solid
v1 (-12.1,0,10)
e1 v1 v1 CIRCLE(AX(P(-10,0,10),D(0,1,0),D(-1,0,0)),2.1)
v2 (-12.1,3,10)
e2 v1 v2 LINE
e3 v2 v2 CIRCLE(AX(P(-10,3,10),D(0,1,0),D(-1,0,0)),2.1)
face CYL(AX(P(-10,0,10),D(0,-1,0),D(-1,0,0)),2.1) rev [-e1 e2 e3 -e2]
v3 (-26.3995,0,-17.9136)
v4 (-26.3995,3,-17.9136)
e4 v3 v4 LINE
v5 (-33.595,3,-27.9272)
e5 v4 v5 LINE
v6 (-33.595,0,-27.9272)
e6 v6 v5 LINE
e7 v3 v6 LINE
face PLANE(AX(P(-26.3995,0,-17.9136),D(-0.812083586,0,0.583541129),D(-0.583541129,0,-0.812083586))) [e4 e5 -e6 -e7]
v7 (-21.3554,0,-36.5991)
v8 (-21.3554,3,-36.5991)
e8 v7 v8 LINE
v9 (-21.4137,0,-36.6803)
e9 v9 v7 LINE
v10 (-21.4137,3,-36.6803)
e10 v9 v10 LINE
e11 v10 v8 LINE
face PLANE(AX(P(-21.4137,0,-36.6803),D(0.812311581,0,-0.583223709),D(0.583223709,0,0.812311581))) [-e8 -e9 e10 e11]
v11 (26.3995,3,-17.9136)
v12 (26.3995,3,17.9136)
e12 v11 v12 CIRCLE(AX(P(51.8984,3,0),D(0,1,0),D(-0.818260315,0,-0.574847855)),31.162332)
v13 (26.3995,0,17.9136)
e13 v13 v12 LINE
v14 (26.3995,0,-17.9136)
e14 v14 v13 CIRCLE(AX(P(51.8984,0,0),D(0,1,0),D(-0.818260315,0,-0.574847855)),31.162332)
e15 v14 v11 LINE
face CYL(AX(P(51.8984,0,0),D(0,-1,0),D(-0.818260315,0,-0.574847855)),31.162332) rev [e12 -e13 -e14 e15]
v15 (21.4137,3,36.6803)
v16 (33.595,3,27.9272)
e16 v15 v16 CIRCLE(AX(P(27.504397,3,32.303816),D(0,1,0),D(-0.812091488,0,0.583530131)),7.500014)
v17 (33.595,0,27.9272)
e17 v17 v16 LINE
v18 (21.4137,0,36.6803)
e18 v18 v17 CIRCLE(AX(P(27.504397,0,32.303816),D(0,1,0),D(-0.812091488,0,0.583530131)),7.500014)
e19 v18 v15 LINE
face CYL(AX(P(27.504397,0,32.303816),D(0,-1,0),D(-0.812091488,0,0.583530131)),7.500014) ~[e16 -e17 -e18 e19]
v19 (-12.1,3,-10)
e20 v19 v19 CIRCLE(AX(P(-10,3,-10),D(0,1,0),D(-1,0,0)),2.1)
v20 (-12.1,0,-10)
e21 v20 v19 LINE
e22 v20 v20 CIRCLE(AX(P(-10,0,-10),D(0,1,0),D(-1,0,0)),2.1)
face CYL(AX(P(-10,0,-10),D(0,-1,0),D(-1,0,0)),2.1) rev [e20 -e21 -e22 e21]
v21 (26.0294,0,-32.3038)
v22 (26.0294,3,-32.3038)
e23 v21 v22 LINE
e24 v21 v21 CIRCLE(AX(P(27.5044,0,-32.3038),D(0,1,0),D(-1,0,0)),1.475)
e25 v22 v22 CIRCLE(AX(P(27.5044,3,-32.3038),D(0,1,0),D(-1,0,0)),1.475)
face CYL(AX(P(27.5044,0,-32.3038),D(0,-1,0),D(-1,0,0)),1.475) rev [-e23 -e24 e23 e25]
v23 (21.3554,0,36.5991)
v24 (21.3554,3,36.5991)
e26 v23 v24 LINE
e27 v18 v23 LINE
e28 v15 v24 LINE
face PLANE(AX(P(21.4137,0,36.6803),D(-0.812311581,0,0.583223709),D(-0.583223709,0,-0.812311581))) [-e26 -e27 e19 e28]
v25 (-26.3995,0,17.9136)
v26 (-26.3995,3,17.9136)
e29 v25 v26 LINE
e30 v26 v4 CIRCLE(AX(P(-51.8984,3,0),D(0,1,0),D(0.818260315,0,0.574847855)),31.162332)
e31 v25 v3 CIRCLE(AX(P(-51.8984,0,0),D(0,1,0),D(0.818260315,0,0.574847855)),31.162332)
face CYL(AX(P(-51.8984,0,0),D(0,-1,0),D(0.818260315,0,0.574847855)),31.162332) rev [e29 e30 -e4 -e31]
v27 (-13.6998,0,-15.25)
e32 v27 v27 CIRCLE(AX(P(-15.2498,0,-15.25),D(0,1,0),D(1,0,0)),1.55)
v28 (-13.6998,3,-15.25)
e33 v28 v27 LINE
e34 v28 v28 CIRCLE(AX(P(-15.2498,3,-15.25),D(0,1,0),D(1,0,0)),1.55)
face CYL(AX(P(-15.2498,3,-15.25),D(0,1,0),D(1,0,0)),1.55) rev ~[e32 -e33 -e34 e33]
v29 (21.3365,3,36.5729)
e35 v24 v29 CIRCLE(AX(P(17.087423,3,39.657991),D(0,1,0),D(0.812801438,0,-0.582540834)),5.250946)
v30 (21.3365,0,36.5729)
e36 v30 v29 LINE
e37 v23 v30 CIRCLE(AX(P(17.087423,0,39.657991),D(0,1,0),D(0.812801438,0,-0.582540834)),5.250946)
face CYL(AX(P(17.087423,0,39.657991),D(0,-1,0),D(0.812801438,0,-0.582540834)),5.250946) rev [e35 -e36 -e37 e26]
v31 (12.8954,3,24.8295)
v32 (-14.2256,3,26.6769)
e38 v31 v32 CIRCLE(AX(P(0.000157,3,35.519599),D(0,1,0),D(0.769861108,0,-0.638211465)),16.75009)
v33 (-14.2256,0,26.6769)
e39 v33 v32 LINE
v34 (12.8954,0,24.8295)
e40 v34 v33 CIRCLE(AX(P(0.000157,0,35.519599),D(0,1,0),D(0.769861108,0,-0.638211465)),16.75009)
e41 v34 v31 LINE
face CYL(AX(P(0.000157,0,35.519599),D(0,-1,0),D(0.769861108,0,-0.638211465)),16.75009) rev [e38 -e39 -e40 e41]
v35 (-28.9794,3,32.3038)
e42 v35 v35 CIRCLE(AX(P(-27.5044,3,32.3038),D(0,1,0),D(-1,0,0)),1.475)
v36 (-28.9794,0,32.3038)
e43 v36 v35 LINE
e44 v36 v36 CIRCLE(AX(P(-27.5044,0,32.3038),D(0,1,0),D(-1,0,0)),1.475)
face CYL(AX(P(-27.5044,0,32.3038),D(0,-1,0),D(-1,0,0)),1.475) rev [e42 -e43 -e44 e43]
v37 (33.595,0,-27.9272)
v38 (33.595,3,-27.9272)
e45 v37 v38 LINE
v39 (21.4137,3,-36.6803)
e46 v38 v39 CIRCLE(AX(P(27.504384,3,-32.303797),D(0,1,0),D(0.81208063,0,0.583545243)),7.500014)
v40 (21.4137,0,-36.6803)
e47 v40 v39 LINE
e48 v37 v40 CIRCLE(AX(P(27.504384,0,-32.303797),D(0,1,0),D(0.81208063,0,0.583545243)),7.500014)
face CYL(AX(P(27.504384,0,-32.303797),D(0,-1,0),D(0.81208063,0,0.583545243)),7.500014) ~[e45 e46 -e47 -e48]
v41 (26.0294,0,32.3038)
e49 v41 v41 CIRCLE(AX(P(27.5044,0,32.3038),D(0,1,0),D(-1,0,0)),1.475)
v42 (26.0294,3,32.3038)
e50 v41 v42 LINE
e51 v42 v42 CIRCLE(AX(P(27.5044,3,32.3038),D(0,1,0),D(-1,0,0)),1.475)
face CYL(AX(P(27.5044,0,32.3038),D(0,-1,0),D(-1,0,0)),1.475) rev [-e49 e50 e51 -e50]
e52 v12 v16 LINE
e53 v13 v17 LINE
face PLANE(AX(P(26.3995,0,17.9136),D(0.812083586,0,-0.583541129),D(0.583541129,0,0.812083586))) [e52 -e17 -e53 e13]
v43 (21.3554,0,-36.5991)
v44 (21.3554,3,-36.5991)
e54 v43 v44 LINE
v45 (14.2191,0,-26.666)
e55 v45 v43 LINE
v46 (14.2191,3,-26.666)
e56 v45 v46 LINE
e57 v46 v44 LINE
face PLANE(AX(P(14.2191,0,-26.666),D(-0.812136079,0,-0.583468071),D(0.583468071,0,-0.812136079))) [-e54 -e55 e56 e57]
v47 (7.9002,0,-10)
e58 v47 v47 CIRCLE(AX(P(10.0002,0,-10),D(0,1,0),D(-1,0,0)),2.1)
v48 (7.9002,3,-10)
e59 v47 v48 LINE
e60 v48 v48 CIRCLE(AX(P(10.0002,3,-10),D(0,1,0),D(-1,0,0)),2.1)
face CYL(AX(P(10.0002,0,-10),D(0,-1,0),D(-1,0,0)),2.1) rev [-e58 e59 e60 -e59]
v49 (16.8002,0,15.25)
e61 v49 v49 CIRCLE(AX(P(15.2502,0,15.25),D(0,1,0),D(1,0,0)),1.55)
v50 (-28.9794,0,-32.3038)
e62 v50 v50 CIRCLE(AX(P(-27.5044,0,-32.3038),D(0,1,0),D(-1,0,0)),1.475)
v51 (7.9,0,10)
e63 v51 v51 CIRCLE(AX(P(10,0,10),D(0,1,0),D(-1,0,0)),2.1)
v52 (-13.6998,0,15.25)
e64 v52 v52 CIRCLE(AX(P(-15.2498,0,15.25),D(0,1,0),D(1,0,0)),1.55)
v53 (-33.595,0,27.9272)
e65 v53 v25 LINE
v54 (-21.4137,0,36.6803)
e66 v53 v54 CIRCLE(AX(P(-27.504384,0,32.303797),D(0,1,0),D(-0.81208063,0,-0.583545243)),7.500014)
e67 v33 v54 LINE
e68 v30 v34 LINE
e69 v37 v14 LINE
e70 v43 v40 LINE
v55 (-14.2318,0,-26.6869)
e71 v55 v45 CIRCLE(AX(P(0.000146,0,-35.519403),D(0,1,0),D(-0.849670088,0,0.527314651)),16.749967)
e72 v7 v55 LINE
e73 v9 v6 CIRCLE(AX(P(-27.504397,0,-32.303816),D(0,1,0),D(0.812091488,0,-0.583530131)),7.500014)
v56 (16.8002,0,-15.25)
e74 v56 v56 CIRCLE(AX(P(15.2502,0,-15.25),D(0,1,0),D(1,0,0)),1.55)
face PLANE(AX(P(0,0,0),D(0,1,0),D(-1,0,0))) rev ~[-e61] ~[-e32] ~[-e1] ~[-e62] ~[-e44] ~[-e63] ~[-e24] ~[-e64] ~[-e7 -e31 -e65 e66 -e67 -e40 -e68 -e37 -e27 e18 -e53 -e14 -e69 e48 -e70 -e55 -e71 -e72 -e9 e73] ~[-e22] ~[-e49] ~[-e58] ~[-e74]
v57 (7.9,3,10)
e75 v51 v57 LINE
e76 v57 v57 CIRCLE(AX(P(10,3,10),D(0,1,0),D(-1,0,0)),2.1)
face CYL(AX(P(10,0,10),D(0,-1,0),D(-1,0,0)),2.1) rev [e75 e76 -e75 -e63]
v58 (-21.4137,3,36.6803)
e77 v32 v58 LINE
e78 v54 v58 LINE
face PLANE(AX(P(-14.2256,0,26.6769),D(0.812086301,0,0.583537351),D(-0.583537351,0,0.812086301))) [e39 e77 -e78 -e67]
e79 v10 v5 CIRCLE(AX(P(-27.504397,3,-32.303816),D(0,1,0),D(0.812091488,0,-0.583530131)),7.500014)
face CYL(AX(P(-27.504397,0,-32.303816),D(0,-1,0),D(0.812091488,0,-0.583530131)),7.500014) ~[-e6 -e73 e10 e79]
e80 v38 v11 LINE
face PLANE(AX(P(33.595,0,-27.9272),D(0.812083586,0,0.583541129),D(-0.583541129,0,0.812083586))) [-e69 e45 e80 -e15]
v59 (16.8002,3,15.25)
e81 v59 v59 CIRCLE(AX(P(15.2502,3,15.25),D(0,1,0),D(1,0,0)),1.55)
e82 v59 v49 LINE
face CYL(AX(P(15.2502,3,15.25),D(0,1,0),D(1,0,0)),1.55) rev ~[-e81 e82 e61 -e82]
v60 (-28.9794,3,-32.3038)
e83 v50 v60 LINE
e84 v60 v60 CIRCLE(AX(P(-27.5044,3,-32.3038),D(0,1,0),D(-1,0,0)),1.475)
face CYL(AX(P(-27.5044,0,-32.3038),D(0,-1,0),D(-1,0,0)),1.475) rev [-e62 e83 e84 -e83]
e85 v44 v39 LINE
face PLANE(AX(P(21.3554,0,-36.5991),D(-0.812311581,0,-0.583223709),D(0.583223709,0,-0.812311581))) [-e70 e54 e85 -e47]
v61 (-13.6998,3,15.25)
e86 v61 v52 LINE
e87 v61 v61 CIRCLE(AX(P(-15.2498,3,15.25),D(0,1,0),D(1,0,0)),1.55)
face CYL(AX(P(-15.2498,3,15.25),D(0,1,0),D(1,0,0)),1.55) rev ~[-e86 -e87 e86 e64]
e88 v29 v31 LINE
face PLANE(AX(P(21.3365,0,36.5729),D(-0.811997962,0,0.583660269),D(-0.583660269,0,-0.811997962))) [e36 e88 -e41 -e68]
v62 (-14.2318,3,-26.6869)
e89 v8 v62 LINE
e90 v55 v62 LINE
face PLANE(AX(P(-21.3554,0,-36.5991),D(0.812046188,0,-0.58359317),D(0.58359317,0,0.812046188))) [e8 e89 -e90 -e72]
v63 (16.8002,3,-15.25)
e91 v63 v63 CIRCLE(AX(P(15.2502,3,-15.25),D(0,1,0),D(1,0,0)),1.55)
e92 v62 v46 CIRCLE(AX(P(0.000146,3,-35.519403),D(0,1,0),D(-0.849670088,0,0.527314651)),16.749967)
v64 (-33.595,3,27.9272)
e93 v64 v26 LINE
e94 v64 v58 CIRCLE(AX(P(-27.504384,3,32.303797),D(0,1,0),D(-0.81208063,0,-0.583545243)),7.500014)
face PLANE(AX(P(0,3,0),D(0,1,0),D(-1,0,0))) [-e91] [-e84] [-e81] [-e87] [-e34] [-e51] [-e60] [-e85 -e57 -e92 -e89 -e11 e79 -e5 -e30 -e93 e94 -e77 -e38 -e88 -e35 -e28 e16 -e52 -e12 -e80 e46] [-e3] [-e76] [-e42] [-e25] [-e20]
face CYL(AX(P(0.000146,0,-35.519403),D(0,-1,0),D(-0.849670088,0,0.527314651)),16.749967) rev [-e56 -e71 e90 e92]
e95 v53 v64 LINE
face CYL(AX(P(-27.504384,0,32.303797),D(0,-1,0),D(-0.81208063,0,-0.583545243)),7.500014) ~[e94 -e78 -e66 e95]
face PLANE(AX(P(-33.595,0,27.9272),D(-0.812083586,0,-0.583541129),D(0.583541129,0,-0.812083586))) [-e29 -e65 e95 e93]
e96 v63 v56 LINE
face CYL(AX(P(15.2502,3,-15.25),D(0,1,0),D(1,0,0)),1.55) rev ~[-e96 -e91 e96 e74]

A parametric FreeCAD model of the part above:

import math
import FreeCAD as App
import Part
import Sketcher

V = App.Vector
Q = App.Units.Quantity

doc = App.newDocument("Part")
body = doc.addObject("PartDesign::Body", "Body")

# Sketch on XZ plane
sketch1 = doc.addObject("Sketcher::SketchObject", "Sketch")
body.addObject(sketch1)
sketch1.AttachmentSupport = (doc.XZ_Plane, [""])
sketch1.MapMode = "FlatFace"
sketch1.addGeometry([
    Part.LineSegment(V(21.3554, 36.5991, 0), V(21.4137, 36.6803, 0)),  # 0
    Part.ArcOfCircle(Part.Circle(V(27.5044, 32.3038, 0), V(0, 0, 1), 7.500025), math.radians(-35.700372), math.radians(144.300694)),  # 1
    Part.LineSegment(V(33.595, 27.9272, 0), V(26.3995, 17.9136, 0)),  # 2
    Part.ArcOfCircle(Part.Circle(V(51.8984, 0, 0), V(0, 0, 1), 31.162332), math.radians(144.911022), math.radians(215.088978)),  # 3
    Part.LineSegment(V(26.3995, -17.9136, 0), V(33.595, -27.9272, 0)),  # 4
    Part.ArcOfCircle(Part.Circle(V(27.5044, -32.3038, 0), V(0, 0, 1), 7.500002), math.radians(-144.300694), math.radians(35.700372)),  # 5
    Part.LineSegment(V(21.4137, -36.6803, 0), V(21.3554, -36.5991, 0)),  # 6
    Part.LineSegment(V(21.3554, -36.5991, 0), V(14.2191, -26.666, 0)),  # 7
    Part.ArcOfCircle(Part.Circle(V(0.0002, -35.5195, 0), V(0, 0, 1), 16.750064), math.radians(31.908753), math.radians(148.17562)),  # 8
    Part.LineSegment(V(-14.2318, -26.6869, 0), V(-21.3554, -36.5991, 0)),  # 9
    Part.LineSegment(V(-21.3554, -36.5991, 0), V(-21.4137, -36.6803, 0)),  # 10
    Part.ArcOfCircle(Part.Circle(V(-27.5044, -32.3038, 0), V(0, 0, 1), 7.500025), math.radians(144.299628), math.radians(324.300694)),  # 11
    Part.LineSegment(V(-33.595, -27.9272, 0), V(-26.3995, -17.9136, 0)),  # 12
    Part.ArcOfCircle(Part.Circle(V(-51.8984, 0, 0), V(0, 0, 1), 31.162332), math.radians(-35.088978), math.radians(35.088978)),  # 13
    Part.LineSegment(V(-26.3995, 17.9136, 0), V(-33.595, 27.9272, 0)),  # 14
    Part.ArcOfCircle(Part.Circle(V(-27.5044, 32.3038, 0), V(0, 0, 1), 7.500002), math.radians(35.699306), math.radians(215.700372)),  # 15
    Part.LineSegment(V(-21.4137, 36.6803, 0), V(-14.2256, 26.6769, 0)),  # 16
    Part.ArcOfCircle(Part.Circle(V(0.0002, 35.5195, 0), V(0, 0, 1), 16.749994), math.radians(-148.135373), math.radians(-39.658413)),  # 17
    Part.LineSegment(V(12.8954, 24.8295, 0), V(21.3365, 36.5729, 0)),  # 18
    Part.ArcOfCircle(Part.Circle(V(17.087423, 39.657991, 0), V(0, 0, 1), 5.250946), math.radians(-35.981954), math.radians(-35.629451)),  # 19
    Part.Circle(V(27.5044, -32.3038, 0), V(0, 0, 1), 1.475),  # 20
    Part.Circle(V(15.2502, -15.25, 0), V(0, 0, 1), 1.475),  # 21
    Part.Circle(V(10.0002, -10, 0), V(0, 0, 1), 2.1),  # 22
    Part.Circle(V(-27.5044, -32.3038, 0), V(0, 0, 1), 1.475),  # 23
    Part.Circle(V(-15.2498, -15.25, 0), V(0, 0, 1), 1.475),  # 24
    Part.Circle(V(-10, -10, 0), V(0, 0, 1), 2.1),  # 25
    Part.Circle(V(27.5044, 32.3038, 0), V(0, 0, 1), 1.475),  # 26
    Part.Circle(V(-10, 10, 0), V(0, 0, 1), 2.1),  # 27
    Part.Circle(V(-15.2498, 15.25, 0), V(0, 0, 1), 1.475),  # 28
    Part.Circle(V(-27.5044, 32.3038, 0), V(0, 0, 1), 1.475),  # 29
    Part.Circle(V(10, 10, 0), V(0, 0, 1), 2.1),  # 30
    Part.Circle(V(15.2502, 15.25, 0), V(0, 0, 1), 1.475),  # 31
], False)
sketch1.addConstraint([
    Sketcher.Constraint("Coincident", 0, 2, 1, 2),
    Sketcher.Constraint("Coincident", 1, 1, 2, 1),
    Sketcher.Constraint("Coincident", 2, 2, 3, 1),
    Sketcher.Constraint("Coincident", 3, 2, 4, 1),
    Sketcher.Constraint("Coincident", 4, 2, 5, 2),
    Sketcher.Constraint("Coincident", 5, 1, 6, 1),
    Sketcher.Constraint("Coincident", 6, 2, 7, 1),
    Sketcher.Constraint("Coincident", 7, 2, 8, 1),
    Sketcher.Constraint("Coincident", 8, 2, 9, 1),
    Sketcher.Constraint("Coincident", 9, 2, 10, 1),
    Sketcher.Constraint("Coincident", 10, 2, 11, 2),
    Sketcher.Constraint("Coincident", 11, 1, 12, 1),
    Sketcher.Constraint("Coincident", 12, 2, 13, 1),
    Sketcher.Constraint("Coincident", 13, 2, 14, 1),
    Sketcher.Constraint("Coincident", 14, 2, 15, 2),
    Sketcher.Constraint("Coincident", 15, 1, 16, 1),
    Sketcher.Constraint("Coincident", 16, 2, 17, 1),
    Sketcher.Constraint("Coincident", 17, 2, 18, 1),
    Sketcher.Constraint("Coincident", 18, 2, 19, 1),
    Sketcher.Constraint("Coincident", 19, 2, 0, 1),
    Sketcher.Constraint("Coincident", 20, 3, 5, 3),
    Sketcher.Constraint("Coincident", 23, 3, 11, 3),
    Sketcher.Constraint("Coincident", 26, 3, 1, 3),
    Sketcher.Constraint("Coincident", 29, 3, 15, 3),
    Sketcher.Constraint("PointOnObject", 3, 3, -1),
    Sketcher.Constraint("PointOnObject", 13, 3, -1),
    Sketcher.Constraint("Diameter", 22, Q("4.2 mm")),
    Sketcher.Constraint("Diameter", 25, Q("4.2 mm")),
    Sketcher.Constraint("Diameter", 27, Q("4.2 mm")),
    Sketcher.Constraint("Diameter", 30, Q("4.2 mm")),
    Sketcher.Constraint("Radius", 1, Q("7.5 mm")),
    Sketcher.Constraint("Radius", 5, Q("7.5 mm")),
    Sketcher.Constraint("Radius", 11, Q("7.5 mm")),
    Sketcher.Constraint("Radius", 15, Q("7.5 mm")),
    Sketcher.Constraint("Diameter", 20, Q("2.95 mm")),
    Sketcher.Constraint("Diameter", 21, Q("2.95 mm")),
    Sketcher.Constraint("Diameter", 23, Q("2.95 mm")),
    Sketcher.Constraint("Diameter", 24, Q("2.95 mm")),
    Sketcher.Constraint("Diameter", 26, Q("2.95 mm")),
    Sketcher.Constraint("Diameter", 28, Q("2.95 mm")),
    Sketcher.Constraint("Diameter", 29, Q("2.95 mm")),
    Sketcher.Constraint("Diameter", 31, Q("2.95 mm")),
    Sketcher.Constraint("Radius", 8, Q("16.75 mm")),
    Sketcher.Constraint("Radius", 17, Q("16.75 mm")),
    Sketcher.Constraint("DistanceY", 22, 3, -1, 1, Q("10 mm")),
    Sketcher.Constraint("DistanceX", 25, 3, -1, 1, Q("10 mm")),
    Sketcher.Constraint("DistanceY", 25, 3, -1, 1, Q("10 mm")),
    Sketcher.Constraint("DistanceX", 27, 3, -1, 1, Q("10 mm")),
    Sketcher.Constraint("DistanceY", -1, 1, 27, 3, Q("10 mm")),
    Sketcher.Constraint("DistanceX", -1, 1, 30, 3, Q("10 mm")),
    Sketcher.Constraint("DistanceY", -1, 1, 30, 3, Q("10 mm")),
    Sketcher.Constraint("Radius", 19, Q("5.251 mm")),
    Sketcher.Constraint("DistanceX", 8, 3, 22, 3, Q("10 mm")),
    Sketcher.Constraint("Distance", 0, Q("0.1 mm")),
    Sketcher.Constraint("Distance", 6, Q("0.1 mm")),
    Sketcher.Constraint("Distance", 10, Q("0.1 mm")),
    Sketcher.Constraint("Radius", 3, Q("31.1623 mm")),
    Sketcher.Constraint("Radius", 13, Q("31.1623 mm")),
    Sketcher.Constraint("DistanceX", 24, 3, 21, 3, Q("30.5 mm")),
    Sketcher.Constraint("DistanceY", 24, 3, 28, 3, Q("30.5 mm")),
    Sketcher.Constraint("DistanceY", 21, 3, -1, 1, Q("15.25 mm")),
    Sketcher.Constraint("DistanceY", 24, 3, -1, 1, Q("15.25 mm")),
    Sketcher.Constraint("DistanceY", -1, 1, 31, 3, Q("15.25 mm")),
    Sketcher.Constraint("DistanceX", 8, 3, 21, 3, Q("15.25 mm")),
    Sketcher.Constraint("DistanceX", 28, 3, 17, 3, Q("15.25 mm")),
    Sketcher.Constraint("DistanceX", 17, 3, 31, 3, Q("15.25 mm")),
    Sketcher.Constraint("DistanceY", -1, 1, 19, 3, Q("39.658 mm")),
    Sketcher.Constraint("DistanceX", -1, 1, 1, 1, Q("33.595 mm")),
    Sketcher.Constraint("DistanceX", -1, 1, 4, 2, Q("33.595 mm")),
    Sketcher.Constraint("DistanceY", 6, 2, -1, 1, Q("36.599 mm")),
    Sketcher.Constraint("DistanceX", -1, 1, 7, 2, Q("14.219 mm")),
    Sketcher.Constraint("DistanceY", 7, 2, -1, 1, Q("26.666 mm")),
    Sketcher.Constraint("DistanceY", 8, 2, -1, 1, Q("26.687 mm")),
    Sketcher.Constraint("DistanceY", 9, 2, -1, 1, Q("36.599 mm")),
    Sketcher.Constraint("DistanceX", 11, 1, -1, 1, Q("33.595 mm")),
    Sketcher.Constraint("DistanceX", 14, 2, -1, 1, Q("33.595 mm")),
    Sketcher.Constraint("DistanceY", -1, 1, 16, 2, Q("26.677 mm")),
    Sketcher.Constraint("DistanceY", -1, 1, 18, 2, Q("36.573 mm")),
    Sketcher.Constraint("DistanceY", -1, 1, 19, 2, Q("36.599 mm")),
    Sketcher.Constraint("DistanceX", 1, 3, 3, 3, Q("24.394 mm")),
    Sketcher.Constraint("DistanceX", 5, 3, 3, 3, Q("24.394 mm")),
    Sketcher.Constraint("DistanceX", 13, 3, 11, 3, Q("24.394 mm")),
    Sketcher.Constraint("DistanceX", 13, 3, 15, 3, Q("24.394 mm")),
    Sketcher.Constraint("DistanceY", 8, 3, 17, 3, Q("71.039 mm")),
    Sketcher.Constraint("DistanceX", 19, 3, 1, 3, Q("10.417 mm")),
    Sketcher.Constraint("DistanceY", 1, 1, 0, 2, Q("8.753 mm")),
    Sketcher.Constraint("DistanceX", 2, 2, 1, 3, Q("1.105 mm")),
    Sketcher.Constraint("DistanceX", 3, 2, 5, 3, Q("1.105 mm")),
    Sketcher.Constraint("DistanceY", 5, 1, 4, 2, Q("8.753 mm")),
    Sketcher.Constraint("DistanceX", 6, 2, 5, 3, Q("6.149 mm")),
    Sketcher.Constraint("DistanceY", 6, 2, 4, 2, Q("8.672 mm")),
    Sketcher.Constraint("DistanceX", 7, 2, 21, 3, Q("1.031 mm")),
    Sketcher.Constraint("DistanceY", 11, 3, 8, 2, Q("5.617 mm")),
    Sketcher.Constraint("DistanceX", 11, 3, 9, 2, Q("6.149 mm")),
    Sketcher.Constraint("DistanceX", 10, 2, 8, 2, Q("7.182 mm")),
    Sketcher.Constraint("DistanceX", 11, 3, 12, 2, Q("1.105 mm")),
    Sketcher.Constraint("DistanceX", 15, 3, 13, 2, Q("1.105 mm")),
    Sketcher.Constraint("DistanceY", 14, 2, 15, 1, Q("8.753 mm")),
    Sketcher.Constraint("DistanceX", 15, 1, 17, 3, Q("21.414 mm")),
    Sketcher.Constraint("DistanceY", 16, 2, 15, 3, Q("5.627 mm")),
    Sketcher.Constraint("DistanceX", 17, 2, 2, 2, Q("13.504 mm")),
])
pad1 = doc.addObject("PartDesign::Pad", "Pad")
body.addObject(pad1)
pad1.Profile = sketch1
pad1.Length = 3
pad1.Reversed = True

# Sketch on XZ plane
sketch2 = doc.addObject("Sketcher::SketchObject", "Sketch001")
body.addObject(sketch2)
sketch2.AttachmentSupport = (doc.XZ_Plane, [""])
sketch2.MapMode = "FlatFace"
sketch2.AttachmentOffset = App.Placement(V(0, 0, -3), App.Rotation())
sketch2.addGeometry([
    Part.Circle(V(-15.2, -15.2, 0), V(0, 0, 1), 1.6),
    Part.Circle(V(15.3, -15.2, 0), V(0, 0, 1), 1.6),
    Part.Circle(V(15.3, 15.2, 0), V(0, 0, 1), 1.6),
    Part.Circle(V(-15.2, 15.2, 0), V(0, 0, 1), 1.6),
], False)
sketch2.addConstraint([
    Sketcher.Constraint("Equal", 0, 1),
    Sketcher.Constraint("Equal", 1, 2),
    Sketcher.Constraint("Equal", 2, 3),
    Sketcher.Constraint("Symmetric", 0, 3, 2, 3, -1, 1),
    Sketcher.Constraint("Symmetric", 1, 3, 3, 3, -1, 1),
    Sketcher.Constraint("Symmetric", 0, 3, 1, 3, -2),
    Sketcher.Constraint("Diameter", 0, Q("3.1 mm")),
    Sketcher.Constraint("DistanceX", 0, 3, 1, 3, Q("30.5 mm")),
    Sketcher.Constraint("DistanceY", 1, 3, 2, 3, Q("30.5 mm")),
])
pocket1 = doc.addObject("PartDesign::Pocket", "Pocket")
body.addObject(pocket1)
pocket1.Profile = sketch2
pocket1.Type = "ThroughAll"
pocket1.Reversed = True

doc.recompute()
